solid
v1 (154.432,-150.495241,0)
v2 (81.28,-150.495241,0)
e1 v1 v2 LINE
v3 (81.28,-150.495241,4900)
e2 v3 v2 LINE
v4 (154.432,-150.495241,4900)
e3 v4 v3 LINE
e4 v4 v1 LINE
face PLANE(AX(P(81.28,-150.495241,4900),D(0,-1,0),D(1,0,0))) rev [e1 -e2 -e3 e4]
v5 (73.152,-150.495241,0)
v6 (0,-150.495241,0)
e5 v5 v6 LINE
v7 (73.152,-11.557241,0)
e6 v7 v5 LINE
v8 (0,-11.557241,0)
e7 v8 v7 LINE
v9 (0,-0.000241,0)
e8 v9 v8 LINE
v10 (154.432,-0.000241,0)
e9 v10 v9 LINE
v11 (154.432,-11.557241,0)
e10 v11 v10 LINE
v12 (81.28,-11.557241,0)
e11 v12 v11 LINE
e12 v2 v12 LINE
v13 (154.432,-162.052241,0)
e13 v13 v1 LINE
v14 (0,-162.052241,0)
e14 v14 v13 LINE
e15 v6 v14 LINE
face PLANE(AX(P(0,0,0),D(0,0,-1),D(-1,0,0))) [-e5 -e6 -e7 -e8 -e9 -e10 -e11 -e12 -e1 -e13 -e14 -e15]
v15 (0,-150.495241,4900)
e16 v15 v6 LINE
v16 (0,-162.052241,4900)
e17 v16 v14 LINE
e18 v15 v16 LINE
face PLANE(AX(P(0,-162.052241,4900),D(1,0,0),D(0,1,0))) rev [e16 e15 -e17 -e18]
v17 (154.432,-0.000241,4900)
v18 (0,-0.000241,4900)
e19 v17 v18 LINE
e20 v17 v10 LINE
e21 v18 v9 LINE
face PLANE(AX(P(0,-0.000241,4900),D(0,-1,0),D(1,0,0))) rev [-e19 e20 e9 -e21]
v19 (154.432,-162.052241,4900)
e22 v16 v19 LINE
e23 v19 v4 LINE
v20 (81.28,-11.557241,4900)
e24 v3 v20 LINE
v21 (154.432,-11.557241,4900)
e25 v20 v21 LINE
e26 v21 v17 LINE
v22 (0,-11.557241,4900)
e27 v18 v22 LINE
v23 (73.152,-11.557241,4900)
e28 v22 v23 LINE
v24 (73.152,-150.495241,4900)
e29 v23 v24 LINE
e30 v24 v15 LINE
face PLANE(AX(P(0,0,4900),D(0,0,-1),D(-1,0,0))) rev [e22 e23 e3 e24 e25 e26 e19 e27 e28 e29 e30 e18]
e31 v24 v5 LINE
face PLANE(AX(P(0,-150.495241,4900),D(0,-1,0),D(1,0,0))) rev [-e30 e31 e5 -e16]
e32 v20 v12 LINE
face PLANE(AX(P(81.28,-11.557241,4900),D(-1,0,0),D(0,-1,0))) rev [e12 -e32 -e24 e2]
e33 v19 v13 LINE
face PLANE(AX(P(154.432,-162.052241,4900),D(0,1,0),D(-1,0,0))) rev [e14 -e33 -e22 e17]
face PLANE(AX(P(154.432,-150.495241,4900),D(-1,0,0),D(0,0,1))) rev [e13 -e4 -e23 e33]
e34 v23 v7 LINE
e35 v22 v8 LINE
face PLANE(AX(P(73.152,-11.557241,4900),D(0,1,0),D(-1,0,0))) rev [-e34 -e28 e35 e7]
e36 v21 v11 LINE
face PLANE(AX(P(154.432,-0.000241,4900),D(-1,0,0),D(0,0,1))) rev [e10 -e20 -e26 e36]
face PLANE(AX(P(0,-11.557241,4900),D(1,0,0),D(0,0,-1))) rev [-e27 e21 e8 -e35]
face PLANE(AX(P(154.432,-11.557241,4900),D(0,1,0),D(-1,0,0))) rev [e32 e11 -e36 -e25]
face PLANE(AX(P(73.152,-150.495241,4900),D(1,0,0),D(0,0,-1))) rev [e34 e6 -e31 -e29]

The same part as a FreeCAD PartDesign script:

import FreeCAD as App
import Part
import Sketcher
Q = App.Units.Quantity


def add_polygon(sketch, points):
    """Adds a closed chain of lines whose ends are joined by coincident constraints."""
    first, n = sketch.GeometryCount, len(points)
    for a, b in zip(points, points[1:] + points[:1]):
        sketch.addGeometry(Part.LineSegment(App.Vector(*a, 0), App.Vector(*b, 0)), False)
    for i in range(n):
        sketch.addConstraint(Sketcher.Constraint("Coincident", first + i, 2, first + (i + 1) % n, 1))

doc = App.newDocument("Part")
body = doc.addObject("PartDesign::Body", "Body")

# Sketch on XY plane
sketch1 = doc.addObject("Sketcher::SketchObject", "Sketch")
body.addObject(sketch1)
sketch1.AttachmentSupport = (doc.XY_Plane, [""])
sketch1.MapMode = "FlatFace"
add_polygon(sketch1, [(154.432, -0.000241), (0, -0.000241), (0, -11.557241), (73.152, -11.557241), (73.152, -150.495241), (0, -150.495241), (0, -162.052241), (154.432, -162.052241), (154.432, -150.495241), (81.28, -150.495241), (81.28, -11.557241), (154.432, -11.557241)])  # lines 0-11
sketch1.addConstraint(Sketcher.Constraint("Horizontal", 0))
sketch1.addConstraint(Sketcher.Constraint("Vertical", 1))
sketch1.addConstraint(Sketcher.Constraint("Horizontal", 2))
sketch1.addConstraint(Sketcher.Constraint("Vertical", 3))
sketch1.addConstraint(Sketcher.Constraint("Horizontal", 4))
sketch1.addConstraint(Sketcher.Constraint("Vertical", 5))
sketch1.addConstraint(Sketcher.Constraint("Horizontal", 6))
sketch1.addConstraint(Sketcher.Constraint("Vertical", 7))
sketch1.addConstraint(Sketcher.Constraint("Horizontal", 8))
sketch1.addConstraint(Sketcher.Constraint("Vertical", 9))
sketch1.addConstraint(Sketcher.Constraint("Horizontal", 10))
sketch1.addConstraint(Sketcher.Constraint("Vertical", 11))
sketch1.addConstraint(Sketcher.Constraint("PointOnObject", 0, 2, -2))
sketch1.addConstraint(Sketcher.Constraint("PointOnObject", 4, 2, -2))
sketch1.addConstraint(Sketcher.Constraint("Horizontal", 4, 2, 7, 2))
sketch1.addConstraint(Sketcher.Constraint("Horizontal", 2, 2, 9, 2))
sketch1.addConstraint(Sketcher.Constraint("Vertical", 7, 2, 10, 2))
sketch1.addConstraint(Sketcher.Constraint("Equal", 4, 8))
sketch1.addConstraint(Sketcher.Constraint("Equal", 1, 5))
sketch1.addConstraint(Sketcher.Constraint("DistanceX", 0, 2, 0, 1, Q("6.08 in")))
sketch1.addConstraint(Sketcher.Constraint("DistanceX", 2, 1, 2, 2, Q("2.88 in")))
sketch1.addConstraint(Sketcher.Constraint("DistanceY", 3, 2, 3, 1, Q("5.47 in")))
sketch1.addConstraint(Sketcher.Constraint("DistanceY", 1, 2, 1, 1, Q("0.455 in")))
sketch1.addConstraint(Sketcher.Constraint("DistanceY", 0, 2, -1, 1, Q("0.000241 mm")))
pad1 = doc.addObject("PartDesign::Pad", "Pad")
body.addObject(pad1)
pad1.Profile = sketch1
pad1.Length = 4900

doc.recompute()
